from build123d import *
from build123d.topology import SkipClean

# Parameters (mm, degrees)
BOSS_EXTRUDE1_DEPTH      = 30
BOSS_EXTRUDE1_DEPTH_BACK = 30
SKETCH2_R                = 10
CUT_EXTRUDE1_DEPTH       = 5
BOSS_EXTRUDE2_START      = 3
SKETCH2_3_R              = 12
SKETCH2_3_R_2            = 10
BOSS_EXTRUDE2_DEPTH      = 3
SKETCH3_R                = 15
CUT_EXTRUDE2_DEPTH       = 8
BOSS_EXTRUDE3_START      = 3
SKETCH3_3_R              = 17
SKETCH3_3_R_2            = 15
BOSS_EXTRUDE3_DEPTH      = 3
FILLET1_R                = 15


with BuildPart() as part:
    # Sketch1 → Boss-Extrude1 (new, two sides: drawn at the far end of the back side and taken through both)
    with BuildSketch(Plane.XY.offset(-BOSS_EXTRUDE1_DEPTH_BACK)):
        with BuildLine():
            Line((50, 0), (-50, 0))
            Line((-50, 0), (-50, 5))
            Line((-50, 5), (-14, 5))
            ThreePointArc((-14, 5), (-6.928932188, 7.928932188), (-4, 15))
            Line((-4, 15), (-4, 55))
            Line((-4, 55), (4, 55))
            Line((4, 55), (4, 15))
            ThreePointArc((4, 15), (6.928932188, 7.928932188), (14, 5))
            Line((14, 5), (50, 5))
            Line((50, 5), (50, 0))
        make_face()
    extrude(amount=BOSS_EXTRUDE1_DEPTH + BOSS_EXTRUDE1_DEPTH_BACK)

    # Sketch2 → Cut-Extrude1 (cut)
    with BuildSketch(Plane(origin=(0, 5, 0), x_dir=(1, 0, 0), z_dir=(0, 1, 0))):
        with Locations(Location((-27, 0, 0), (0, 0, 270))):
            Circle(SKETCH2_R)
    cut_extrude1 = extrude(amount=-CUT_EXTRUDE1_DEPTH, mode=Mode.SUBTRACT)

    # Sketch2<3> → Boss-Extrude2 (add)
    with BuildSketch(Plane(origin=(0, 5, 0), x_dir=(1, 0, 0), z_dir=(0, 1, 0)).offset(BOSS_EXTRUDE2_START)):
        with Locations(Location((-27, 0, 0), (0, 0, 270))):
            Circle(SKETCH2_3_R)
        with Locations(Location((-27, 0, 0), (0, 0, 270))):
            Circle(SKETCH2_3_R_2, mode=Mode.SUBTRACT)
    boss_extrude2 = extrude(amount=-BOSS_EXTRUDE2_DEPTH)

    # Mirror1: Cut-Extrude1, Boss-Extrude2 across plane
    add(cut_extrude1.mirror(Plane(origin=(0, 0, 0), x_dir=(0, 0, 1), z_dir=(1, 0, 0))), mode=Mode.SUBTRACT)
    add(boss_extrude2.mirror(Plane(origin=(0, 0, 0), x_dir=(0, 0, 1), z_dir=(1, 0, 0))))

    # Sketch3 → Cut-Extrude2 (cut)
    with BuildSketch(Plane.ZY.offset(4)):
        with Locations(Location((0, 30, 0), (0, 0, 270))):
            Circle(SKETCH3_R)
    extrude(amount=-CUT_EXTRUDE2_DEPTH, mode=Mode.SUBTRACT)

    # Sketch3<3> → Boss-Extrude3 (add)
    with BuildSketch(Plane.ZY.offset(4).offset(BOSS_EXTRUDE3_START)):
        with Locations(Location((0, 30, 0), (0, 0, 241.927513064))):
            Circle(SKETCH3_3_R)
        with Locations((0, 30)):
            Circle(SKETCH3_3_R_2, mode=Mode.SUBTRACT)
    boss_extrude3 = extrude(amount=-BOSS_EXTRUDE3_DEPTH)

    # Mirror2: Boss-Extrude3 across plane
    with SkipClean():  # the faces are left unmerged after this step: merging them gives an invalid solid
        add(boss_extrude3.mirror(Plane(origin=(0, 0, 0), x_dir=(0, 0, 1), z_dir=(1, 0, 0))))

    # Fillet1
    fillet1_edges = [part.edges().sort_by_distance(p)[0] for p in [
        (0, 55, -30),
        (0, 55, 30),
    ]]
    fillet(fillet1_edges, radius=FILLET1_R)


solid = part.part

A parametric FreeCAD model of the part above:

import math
import FreeCAD as App
import Part
import Sketcher


def edges_at(feature, points):
    """Names of the edges that pass closest to the given points."""
    edges = feature.Shape.Edges
    near = lambda p: min(range(len(edges)), key=lambda i: edges[i].distToShape(Part.Vertex(*p))[0])
    return sorted({f"Edge{near(p) + 1}" for p in points})

doc = App.newDocument("Part")
body = doc.addObject("PartDesign::Body", "Body")

sketch1 = body.newObject("Sketcher::SketchObject", "Sketch")
sketch1.AttachmentSupport = (doc.getObject("XY_Plane"), [""])
sketch1.MapMode = "FlatFace"
sketch1.addGeometry(Part.LineSegment(App.Vector(-50, 0, 0), App.Vector(50, 0, 0)), False)
sketch1.addGeometry(Part.LineSegment(App.Vector(50, 0, 0), App.Vector(50, 5, 0)), False)
sketch1.addGeometry(Part.LineSegment(App.Vector(50, 5, 0), App.Vector(14, 5, 0)), False)
sketch1.addGeometry(Part.ArcOfCircle(Part.Circle(App.Vector(14, 15, 0), App.Vector(0, 0, 1), 10), math.radians(180), math.radians(270)), False)
sketch1.addGeometry(Part.LineSegment(App.Vector(4, 15, 0), App.Vector(4, 55, 0)), False)
sketch1.addGeometry(Part.LineSegment(App.Vector(4, 55, 0), App.Vector(-4, 55, 0)), False)
sketch1.addGeometry(Part.LineSegment(App.Vector(-4, 55, 0), App.Vector(-4, 15, 0)), False)
sketch1.addGeometry(Part.ArcOfCircle(Part.Circle(App.Vector(-14, 15, 0), App.Vector(0, 0, 1), 10), math.radians(-90), math.radians(0)), False)
sketch1.addGeometry(Part.LineSegment(App.Vector(-14, 5, 0), App.Vector(-50, 5, 0)), False)
sketch1.addGeometry(Part.LineSegment(App.Vector(-50, 5, 0), App.Vector(-50, 0, 0)), False)
sketch1.addConstraint(Sketcher.Constraint("Coincident", 0, 2, 1, 1))
sketch1.addConstraint(Sketcher.Constraint("Coincident", 1, 2, 2, 1))
sketch1.addConstraint(Sketcher.Constraint("Tangent", 2, 2, 3, 2))
sketch1.addConstraint(Sketcher.Constraint("Tangent", 3, 1, 4, 1))
sketch1.addConstraint(Sketcher.Constraint("Coincident", 4, 2, 5, 1))
sketch1.addConstraint(Sketcher.Constraint("Coincident", 5, 2, 6, 1))
sketch1.addConstraint(Sketcher.Constraint("Tangent", 6, 2, 7, 2))
sketch1.addConstraint(Sketcher.Constraint("Tangent", 7, 1, 8, 1))
sketch1.addConstraint(Sketcher.Constraint("Coincident", 8, 2, 9, 1))
sketch1.addConstraint(Sketcher.Constraint("Coincident", 9, 2, 0, 1))
sketch1.addConstraint(Sketcher.Constraint("Horizontal", 0))
sketch1.addConstraint(Sketcher.Constraint("Vertical", 1))
sketch1.addConstraint(Sketcher.Constraint("Horizontal", 2))
sketch1.addConstraint(Sketcher.Constraint("Vertical", 4))
sketch1.addConstraint(Sketcher.Constraint("Horizontal", 5))
sketch1.addConstraint(Sketcher.Constraint("Vertical", 6))
sketch1.addConstraint(Sketcher.Constraint("Horizontal", 8))
sketch1.addConstraint(Sketcher.Constraint("Vertical", 9))
sketch1.addConstraint(Sketcher.Constraint("Equal", 3, 7))
sketch1.addConstraint(Sketcher.Constraint("Symmetric", 0, 2, 9, 2, -1, 1))
sketch1.addConstraint(Sketcher.Constraint("Symmetric", 3, 3, 7, 3, -2))
sketch1.addConstraint(Sketcher.Constraint("Radius", 3, 10.0))
sketch1.addConstraint(Sketcher.Constraint("DistanceX", 0, 1, 0, 2, 100.0))
sketch1.addConstraint(Sketcher.Constraint("DistanceX", 2, 2, 2, 1, 36.0))
sketch1.addConstraint(Sketcher.Constraint("DistanceY", 1, 1, 1, 2, 5.0))
sketch1.addConstraint(Sketcher.Constraint("DistanceY", 4, 1, 4, 2, 40.0))
pad1 = body.newObject("PartDesign::Pad", "Pad")
pad1.Profile = sketch1
pad1.Type = "TwoLengths"
pad1.Length = 30
pad1.Length2 = 30

sketch2 = body.newObject("Sketcher::SketchObject", "Sketch001")
sketch2.AttachmentSupport = (doc.getObject("XZ_Plane"), [""])
sketch2.MapMode = "FlatFace"
sketch2.AttachmentOffset = App.Placement(App.Vector(0, 0, -5), App.Rotation())
sketch2.addGeometry(Part.Circle(App.Vector(-27, 0, 0), App.Vector(0, 0, 1), 10), False)
sketch2.addConstraint(Sketcher.Constraint("PointOnObject", 0, 3, -1))
sketch2.addConstraint(Sketcher.Constraint("Diameter", 0, 20.0))
sketch2.addConstraint(Sketcher.Constraint("DistanceX", 0, 3, -1, 1, 27.0))
pocket1 = body.newObject("PartDesign::Pocket", "Pocket")
pocket1.Profile = sketch2
pocket1.Length = 5
pocket1.Reversed = True

sketch3 = body.newObject("Sketcher::SketchObject", "Sketch002")
sketch3.AttachmentSupport = (doc.getObject("XZ_Plane"), [""])
sketch3.MapMode = "FlatFace"
sketch3.AttachmentOffset = App.Placement(App.Vector(0, 0, -8), App.Rotation())
sketch3.addGeometry(Part.Circle(App.Vector(-27, 0, 0), App.Vector(0, 0, 1), 12), False)
sketch3.addGeometry(Part.Circle(App.Vector(-27, 0, 0), App.Vector(0, 0, 1), 10), False)
sketch3.addConstraint(Sketcher.Constraint("Coincident", 1, 3, 0, 3))
sketch3.addConstraint(Sketcher.Constraint("PointOnObject", 0, 3, -1))
sketch3.addConstraint(Sketcher.Constraint("Diameter", 0, 24.0))
sketch3.addConstraint(Sketcher.Constraint("Diameter", 1, 20.0))
sketch3.addConstraint(Sketcher.Constraint("DistanceX", 0, 3, -1, 1, 27.0))
pad2 = body.newObject("PartDesign::Pad", "Pad001")
pad2.Profile = sketch3
pad2.Length = 3
doc.recompute()

mirrored = body.newObject("PartDesign::Mirrored", "Mirrored")
mirrored.Originals = [pocket1, pad2]
mirrored.MirrorPlane = (doc.getObject("YZ_Plane"), [""])
body.Tip = mirrored

sketch4 = body.newObject("Sketcher::SketchObject", "Sketch003")
sketch4.AttachmentSupport = (doc.getObject("YZ_Plane"), [""])
sketch4.MapMode = "FlatFace"
sketch4.AttachmentOffset = App.Placement(App.Vector(0, 0, -4), App.Rotation())
sketch4.addGeometry(Part.Circle(App.Vector(30, 0, 0), App.Vector(0, 0, 1), 15), False)
sketch4.addConstraint(Sketcher.Constraint("PointOnObject", 0, 3, -1))
sketch4.addConstraint(Sketcher.Constraint("Diameter", 0, 30.0))
sketch4.addConstraint(Sketcher.Constraint("DistanceX", -1, 1, 0, 3, 30.0))
pocket2 = body.newObject("PartDesign::Pocket", "Pocket001")
pocket2.Profile = sketch4
pocket2.Length = 8
pocket2.Reversed = True

sketch5 = body.newObject("Sketcher::SketchObject", "Sketch004")
sketch5.AttachmentSupport = (doc.getObject("YZ_Plane"), [""])
sketch5.MapMode = "FlatFace"
sketch5.AttachmentOffset = App.Placement(App.Vector(0, 0, -7), App.Rotation())
sketch5.addGeometry(Part.Circle(App.Vector(30, 0, 0), App.Vector(0, 0, 1), 17), False)
sketch5.addGeometry(Part.Circle(App.Vector(30, 0, 0), App.Vector(0, 0, 1), 15), False)
sketch5.addConstraint(Sketcher.Constraint("Coincident", 1, 3, 0, 3))
sketch5.addConstraint(Sketcher.Constraint("PointOnObject", 0, 3, -1))
sketch5.addConstraint(Sketcher.Constraint("Diameter", 0, 34.0))
sketch5.addConstraint(Sketcher.Constraint("Diameter", 1, 30.0))
sketch5.addConstraint(Sketcher.Constraint("DistanceX", -1, 1, 0, 3, 30.0))
pad3 = body.newObject("PartDesign::Pad", "Pad002")
pad3.Profile = sketch5
pad3.Length = 3
doc.recompute()

mirrored2 = body.newObject("PartDesign::Mirrored", "Mirrored001")
mirrored2.Originals = [pad3]
mirrored2.MirrorPlane = (doc.getObject("YZ_Plane"), [""])
body.Tip = mirrored2
doc.recompute()

fillet = body.newObject("PartDesign::Fillet", "Fillet")
fillet.Base = (mirrored2, edges_at(mirrored2, [(0, 55, -30), (0, 55, 30)]))
fillet.Radius = 15

doc.recompute()
